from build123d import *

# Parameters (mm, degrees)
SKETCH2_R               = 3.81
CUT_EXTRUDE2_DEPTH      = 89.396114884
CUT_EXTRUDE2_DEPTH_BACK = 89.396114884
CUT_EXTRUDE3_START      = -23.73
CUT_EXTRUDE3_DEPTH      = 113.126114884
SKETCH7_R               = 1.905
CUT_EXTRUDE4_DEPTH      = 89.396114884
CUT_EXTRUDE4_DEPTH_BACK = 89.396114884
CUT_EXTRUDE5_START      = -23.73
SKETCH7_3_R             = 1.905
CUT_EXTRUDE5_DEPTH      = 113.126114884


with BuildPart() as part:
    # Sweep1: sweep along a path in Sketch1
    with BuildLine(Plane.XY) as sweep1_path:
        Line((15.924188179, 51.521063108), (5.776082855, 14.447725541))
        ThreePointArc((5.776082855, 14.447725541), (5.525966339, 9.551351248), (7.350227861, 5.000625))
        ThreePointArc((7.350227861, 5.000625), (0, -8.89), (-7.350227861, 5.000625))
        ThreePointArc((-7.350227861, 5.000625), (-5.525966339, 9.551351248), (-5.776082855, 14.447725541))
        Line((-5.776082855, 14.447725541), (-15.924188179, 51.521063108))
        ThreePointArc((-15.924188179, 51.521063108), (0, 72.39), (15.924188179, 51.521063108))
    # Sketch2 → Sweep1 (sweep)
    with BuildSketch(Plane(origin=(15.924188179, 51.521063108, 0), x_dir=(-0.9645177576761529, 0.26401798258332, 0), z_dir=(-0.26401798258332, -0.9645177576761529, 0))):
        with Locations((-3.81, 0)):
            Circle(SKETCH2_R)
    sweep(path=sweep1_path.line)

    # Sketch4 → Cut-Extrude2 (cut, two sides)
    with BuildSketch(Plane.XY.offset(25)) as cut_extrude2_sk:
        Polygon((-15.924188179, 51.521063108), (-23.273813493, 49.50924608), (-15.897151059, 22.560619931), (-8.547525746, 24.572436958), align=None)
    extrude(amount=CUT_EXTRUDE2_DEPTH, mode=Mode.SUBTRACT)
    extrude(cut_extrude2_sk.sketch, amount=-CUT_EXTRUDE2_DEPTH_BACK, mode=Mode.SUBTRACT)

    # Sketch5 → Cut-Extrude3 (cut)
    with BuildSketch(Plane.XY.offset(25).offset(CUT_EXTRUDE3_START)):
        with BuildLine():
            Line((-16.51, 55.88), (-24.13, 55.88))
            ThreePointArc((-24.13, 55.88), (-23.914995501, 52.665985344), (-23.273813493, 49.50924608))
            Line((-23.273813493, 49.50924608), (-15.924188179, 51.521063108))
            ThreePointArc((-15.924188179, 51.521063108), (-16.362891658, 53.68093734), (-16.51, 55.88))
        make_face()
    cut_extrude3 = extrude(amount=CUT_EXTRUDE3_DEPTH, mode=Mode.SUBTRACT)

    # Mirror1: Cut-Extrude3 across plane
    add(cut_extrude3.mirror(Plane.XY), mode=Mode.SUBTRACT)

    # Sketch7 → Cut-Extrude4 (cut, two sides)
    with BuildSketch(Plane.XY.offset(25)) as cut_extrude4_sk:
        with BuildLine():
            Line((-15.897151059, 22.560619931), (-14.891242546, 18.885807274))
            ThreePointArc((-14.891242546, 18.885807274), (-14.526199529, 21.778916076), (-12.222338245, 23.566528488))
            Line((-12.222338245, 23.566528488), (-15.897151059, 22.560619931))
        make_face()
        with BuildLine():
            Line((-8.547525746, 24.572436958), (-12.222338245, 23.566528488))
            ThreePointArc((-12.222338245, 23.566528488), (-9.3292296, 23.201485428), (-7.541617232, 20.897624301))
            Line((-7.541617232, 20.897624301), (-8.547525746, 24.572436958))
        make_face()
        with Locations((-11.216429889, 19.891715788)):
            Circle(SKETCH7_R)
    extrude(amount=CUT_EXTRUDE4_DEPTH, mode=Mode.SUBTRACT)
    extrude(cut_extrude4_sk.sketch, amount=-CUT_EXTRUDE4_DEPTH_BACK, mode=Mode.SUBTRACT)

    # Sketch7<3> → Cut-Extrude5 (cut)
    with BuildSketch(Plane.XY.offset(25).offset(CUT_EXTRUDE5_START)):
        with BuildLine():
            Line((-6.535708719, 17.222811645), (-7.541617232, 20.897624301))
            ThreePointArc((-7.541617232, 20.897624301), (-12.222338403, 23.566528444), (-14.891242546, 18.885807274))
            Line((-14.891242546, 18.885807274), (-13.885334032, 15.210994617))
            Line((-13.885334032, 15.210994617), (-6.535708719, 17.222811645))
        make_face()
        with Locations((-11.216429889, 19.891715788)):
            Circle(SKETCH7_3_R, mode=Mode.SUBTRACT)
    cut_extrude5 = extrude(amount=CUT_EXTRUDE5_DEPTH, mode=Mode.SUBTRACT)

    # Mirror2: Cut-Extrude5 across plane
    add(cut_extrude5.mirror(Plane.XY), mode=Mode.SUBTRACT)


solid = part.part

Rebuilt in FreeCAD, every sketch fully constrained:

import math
import FreeCAD as App
import Part
import Sketcher
Q = App.Units.Quantity

doc = App.newDocument("Part")
params = doc.addObject("Spreadsheet::Sheet", "Params")
for row, (alias, value) in enumerate([
    ("sketch1_diameter", "0.3 in"),
    ("sketch2_radius", "0.45 in"),
    ("sketch2_radius2", "0.35 in"),
    ("sketch2_radius3", "0.65 in"),
    ("sketch3_length", "0.3 in"),
    ("sketch3_length2", "1.1 in"),
    ("sketch4_radius", "0.95 in"),
    ("sketch4_radius2", "0.65 in"),
    ("pocket2_length", "113.126115 mm"),
    ("sketch5_diameter", "0.15 in"),
    ("sketch5_radius", "0.15 in"),
    ("sketch6_diameter", "0.15 in"),
    ("sketch6_radius", "0.15 in"),
    ("sketch6_length", "0.15 in"),
    ("pocket4_length", "113.126115 mm"),
], start=1):
    params.set(f"A{row}", alias)
    params.set(f"B{row}", "=" + value)
    params.setAlias(f"B{row}", alias)

body = doc.addObject("PartDesign::Body", "Body")

sketch1 = doc.addObject("Sketcher::SketchObject", "Sketch")
body.addObject(sketch1)
sketch1.Placement = App.Placement(App.Vector(15.924188, 51.521063, 0), App.Rotation(App.Vector(-0.964517758, 0.264017983, 0), App.Vector(0, 0, -1.000000001), App.Vector(-0.264017983, -0.964517758, 0), "ZXY"))
sketch1.addGeometry(Part.Circle(App.Vector(-3.81, 0, 0), App.Vector(0, 0, 1), 3.81), False)
sketch1.addConstraint(Sketcher.Constraint("PointOnObject", 0, 3, -1))
sketch1.addConstraint(Sketcher.Constraint("Diameter", 0, Q("0.3 in")))
sketch1.addConstraint(Sketcher.Constraint("DistanceX", 0, 3, -1, 1, Q("0.15 in")))
sketch1.setExpression("Constraints[1]", "Params.sketch1_diameter")

sketch2 = doc.addObject("Sketcher::SketchObject", "Sketch001")
body.addObject(sketch2)
sketch2.AttachmentSupport = (doc.XY_Plane, [""])
sketch2.MapMode = "FlatFace"
sketch2.addGeometry(Part.LineSegment(App.Vector(15.924188, 51.521063, 0), App.Vector(5.776083, 14.447726, 0)), False)
sketch2.addGeometry(Part.ArcOfCircle(Part.Circle(App.Vector(16.800521, 11.43, 0), App.Vector(0, 0, 1), 11.43), math.radians(164.691391), math.radians(214.228866)), False)
sketch2.addGeometry(Part.ArcOfCircle(Part.Circle(App.Vector(0, 0, 0), App.Vector(0, 0, 1), 8.89), math.radians(145.771134), math.radians(394.228866)), False)
sketch2.addGeometry(Part.ArcOfCircle(Part.Circle(App.Vector(-16.800521, 11.43, 0), App.Vector(0, 0, 1), 11.43), math.radians(-34.228866), math.radians(15.308609)), False)
sketch2.addGeometry(Part.LineSegment(App.Vector(-5.776083, 14.447726, 0), App.Vector(-15.924188, 51.521063, 0)), False)
sketch2.addGeometry(Part.ArcOfCircle(Part.Circle(App.Vector(0, 55.88, 0), App.Vector(0, 0, 1), 16.51), math.radians(-15.308609), math.radians(195.308609)), False)
sketch2.addConstraint(Sketcher.Constraint("Tangent", 0, 2, 1, 1))
sketch2.addConstraint(Sketcher.Constraint("Tangent", 1, 2, 2, 2))
sketch2.addConstraint(Sketcher.Constraint("Tangent", 2, 1, 3, 1))
sketch2.addConstraint(Sketcher.Constraint("Tangent", 3, 2, 4, 1))
sketch2.addConstraint(Sketcher.Constraint("Tangent", 4, 2, 5, 2))
sketch2.addConstraint(Sketcher.Constraint("Tangent", 5, 1, 0, 1))
sketch2.addConstraint(Sketcher.Constraint("Coincident", 2, 3, -1, 1))
sketch2.addConstraint(Sketcher.Constraint("Equal", 1, 3))
sketch2.addConstraint(Sketcher.Constraint("Symmetric", 0, 2, 3, 2, -2))
sketch2.addConstraint(Sketcher.Constraint("Radius", 1, Q("0.45 in")))
sketch2.addConstraint(Sketcher.Constraint("Radius", 2, Q("0.35 in")))
sketch2.addConstraint(Sketcher.Constraint("Radius", 5, Q("0.65 in")))
sketch2.addConstraint(Sketcher.Constraint("DistanceY", -1, 1, 5, 3, Q("2.2 in")))
sketch2.addConstraint(Sketcher.Constraint("DistanceY", -1, 1, 1, 3, Q("0.45 in")))
sketch2.setExpression("Constraints[9]", "Params.sketch2_radius")
sketch2.setExpression("Constraints[10]", "Params.sketch2_radius2")
sketch2.setExpression("Constraints[11]", "Params.sketch2_radius3")
doc.recompute()

additivepipe = doc.addObject("PartDesign::AdditivePipe", "AdditivePipe")
body.addObject(additivepipe)
additivepipe.Profile = sketch1
additivepipe.Spine = (sketch2, ["Edge1", "Edge2", "Edge3", "Edge4", "Edge5", "Edge6"])

sketch3 = doc.addObject("Sketcher::SketchObject", "Sketch002")
body.addObject(sketch3)
sketch3.AttachmentSupport = (doc.XY_Plane, [""])
sketch3.MapMode = "FlatFace"
sketch3.AttachmentOffset = App.Placement(App.Vector(0, 0, 25), App.Rotation())
sketch3.addGeometry(Part.LineSegment(App.Vector(-15.924188, 51.521063, 0), App.Vector(-23.273813, 49.509246, 0)), False)
sketch3.addGeometry(Part.LineSegment(App.Vector(-23.273813, 49.509246, 0), App.Vector(-15.897151, 22.56062, 0)), False)
sketch3.addGeometry(Part.LineSegment(App.Vector(-15.897151, 22.56062, 0), App.Vector(-8.547526, 24.572437, 0)), False)
sketch3.addGeometry(Part.LineSegment(App.Vector(-8.547526, 24.572437, 0), App.Vector(-15.924188, 51.521063, 0)), False)
sketch3.addConstraint(Sketcher.Constraint("Coincident", 0, 2, 1, 1))
sketch3.addConstraint(Sketcher.Constraint("Coincident", 1, 2, 2, 1))
sketch3.addConstraint(Sketcher.Constraint("Coincident", 2, 2, 3, 1))
sketch3.addConstraint(Sketcher.Constraint("Coincident", 3, 2, 0, 1))
sketch3.addConstraint(Sketcher.Constraint("Perpendicular", 0, 1))
sketch3.addConstraint(Sketcher.Constraint("Perpendicular", 1, 2))
sketch3.addConstraint(Sketcher.Constraint("Perpendicular", 2, 3))
sketch3.addConstraint(Sketcher.Constraint("Distance", 0, Q("0.3 in")))
sketch3.addConstraint(Sketcher.Constraint("Distance", 1, Q("1.1 in")))
sketch3.addConstraint(Sketcher.Constraint("DistanceX", 1, 2, -1, 1, Q("15.897151 mm")))
sketch3.addConstraint(Sketcher.Constraint("DistanceY", -1, 1, 1, 2, Q("22.56062 mm")))
sketch3.addConstraint(Sketcher.Constraint("DistanceX", 3, 2, -1, 1, Q("15.924188 mm")))
sketch3.setExpression("Constraints[7]", "Params.sketch3_length")
sketch3.setExpression("Constraints[8]", "Params.sketch3_length2")
pocket1 = doc.addObject("PartDesign::Pocket", "Pocket")
body.addObject(pocket1)
pocket1.Profile = sketch3
pocket1.Type = "ThroughAll"
pocket1.Midplane = True

sketch4 = doc.addObject("Sketcher::SketchObject", "Sketch003")
body.addObject(sketch4)
sketch4.AttachmentSupport = (doc.XY_Plane, [""])
sketch4.MapMode = "FlatFace"
sketch4.AttachmentOffset = App.Placement(App.Vector(0, 0, 0.05 * 25.4), App.Rotation())
sketch4.addGeometry(Part.LineSegment(App.Vector(-16.51, 55.88, 0), App.Vector(-24.13, 55.88, 0)), False)
sketch4.addGeometry(Part.ArcOfCircle(Part.Circle(App.Vector(0, 55.88, 0), App.Vector(0, 0, 1), 24.13), math.radians(180), math.radians(195.308609)), False)
sketch4.addGeometry(Part.LineSegment(App.Vector(-23.273813, 49.509246, 0), App.Vector(-15.924188, 51.521063, 0)), False)
sketch4.addGeometry(Part.ArcOfCircle(Part.Circle(App.Vector(0, 55.88, 0), App.Vector(0, 0, 1), 16.51), math.radians(-180), math.radians(-164.691391)), False)
sketch4.addConstraint(Sketcher.Constraint("Coincident", 0, 2, 1, 1))
sketch4.addConstraint(Sketcher.Constraint("Coincident", 1, 2, 2, 1))
sketch4.addConstraint(Sketcher.Constraint("Coincident", 2, 2, 3, 2))
sketch4.addConstraint(Sketcher.Constraint("Coincident", 3, 1, 0, 1))
sketch4.addConstraint(Sketcher.Constraint("Horizontal", 0))
sketch4.addConstraint(Sketcher.Constraint("Coincident", 3, 3, 1, 3))
sketch4.addConstraint(Sketcher.Constraint("PointOnObject", 1, 3, -2))
sketch4.addConstraint(Sketcher.Constraint("Horizontal", 3, 3, 0, 2))
sketch4.addConstraint(Sketcher.Constraint("Radius", 1, Q("0.95 in")))
sketch4.addConstraint(Sketcher.Constraint("Radius", 3, Q("0.65 in")))
sketch4.addConstraint(Sketcher.Constraint("DistanceY", -1, 1, 1, 3, Q("2.2 in")))
sketch4.addConstraint(Sketcher.Constraint("DistanceX", 2, 2, -1, 1, Q("15.924188 mm")))
sketch4.addConstraint(Sketcher.Constraint("DistanceX", 1, 2, -1, 1, Q("23.273813 mm")))
sketch4.setExpression("Constraints[8]", "Params.sketch4_radius")
sketch4.setExpression("Constraints[9]", "Params.sketch4_radius2")
pocket2 = doc.addObject("PartDesign::Pocket", "Pocket001")
body.addObject(pocket2)
pocket2.Profile = sketch4
pocket2.setExpression("Length", "Params.pocket2_length")
pocket2.Reversed = True
doc.recompute()

mirrored = doc.addObject("PartDesign::Mirrored", "Mirrored")
body.addObject(mirrored)
mirrored.Originals = [pocket2]
mirrored.MirrorPlane = (doc.XY_Plane, [""])
body.Tip = mirrored

sketch5 = doc.addObject("Sketcher::SketchObject", "Sketch004")
body.addObject(sketch5)
sketch5.AttachmentSupport = (doc.XY_Plane, [""])
sketch5.MapMode = "FlatFace"
sketch5.AttachmentOffset = App.Placement(App.Vector(0, 0, 25), App.Rotation())
sketch5.addGeometry(Part.LineSegment(App.Vector(-15.897151, 22.56062, 0), App.Vector(-14.891243, 18.885807, 0)), False)
sketch5.addGeometry(Part.ArcOfCircle(Part.Circle(App.Vector(-11.21643, 19.891716, 0), App.Vector(0, 0, 1), 3.81), math.radians(105.308607), math.radians(195.308609)), False)
sketch5.addGeometry(Part.LineSegment(App.Vector(-12.222338, 23.566528, 0), App.Vector(-15.897151, 22.56062, 0)), False)
sketch5.addGeometry(Part.LineSegment(App.Vector(-8.547526, 24.572437, 0), App.Vector(-12.222338, 23.566528, 0)), False)
sketch5.addGeometry(Part.ArcOfCircle(Part.Circle(App.Vector(-11.21643, 19.891716, 0), App.Vector(0, 0, 1), 3.81), math.radians(15.308609), math.radians(105.308607)), False)
sketch5.addGeometry(Part.LineSegment(App.Vector(-7.541617, 20.897624, 0), App.Vector(-8.547526, 24.572437, 0)), False)
sketch5.addGeometry(Part.Circle(App.Vector(-11.21643, 19.891716, 0), App.Vector(0, 0, 1), 1.905), False)
sketch5.addConstraint(Sketcher.Constraint("Tangent", 0, 2, 1, 2))
sketch5.addConstraint(Sketcher.Constraint("Tangent", 1, 1, 2, 1))
sketch5.addConstraint(Sketcher.Constraint("Coincident", 2, 2, 0, 1))
sketch5.addConstraint(Sketcher.Constraint("Tangent", 3, 2, 4, 2))
sketch5.addConstraint(Sketcher.Constraint("Tangent", 4, 1, 5, 1))
sketch5.addConstraint(Sketcher.Constraint("Coincident", 5, 2, 3, 1))
sketch5.addConstraint(Sketcher.Constraint("Coincident", 4, 3, 1, 3))
sketch5.addConstraint(Sketcher.Constraint("Coincident", 6, 3, 1, 3))
sketch5.addConstraint(Sketcher.Constraint("Coincident", 3, 2, 1, 1))
sketch5.addConstraint(Sketcher.Constraint("Perpendicular", 0, 2))
sketch5.addConstraint(Sketcher.Constraint("Perpendicular", 3, 5))
sketch5.addConstraint(Sketcher.Constraint("Diameter", 6, Q("0.15 in")))
sketch5.addConstraint(Sketcher.Constraint("Radius", 1, Q("0.15 in")))
sketch5.addConstraint(Sketcher.Constraint("DistanceX", 1, 3, -1, 1, Q("11.21643 mm")))
sketch5.addConstraint(Sketcher.Constraint("DistanceX", 1, 1, -1, 1, Q("12.222338 mm")))
sketch5.addConstraint(Sketcher.Constraint("DistanceY", -1, 1, 1, 1, Q("23.566528 mm")))
sketch5.setExpression("Constraints[11]", "Params.sketch5_diameter")
sketch5.setExpression("Constraints[12]", "Params.sketch5_radius")
pocket3 = doc.addObject("PartDesign::Pocket", "Pocket002")
body.addObject(pocket3)
pocket3.Profile = sketch5
pocket3.Type = "ThroughAll"
pocket3.Midplane = True

sketch6 = doc.addObject("Sketcher::SketchObject", "Sketch005")
body.addObject(sketch6)
sketch6.AttachmentSupport = (doc.XY_Plane, [""])
sketch6.MapMode = "FlatFace"
sketch6.AttachmentOffset = App.Placement(App.Vector(0, 0, 0.05 * 25.4), App.Rotation())
sketch6.addGeometry(Part.LineSegment(App.Vector(-6.535709, 17.222812, 0), App.Vector(-7.541617, 20.897624, 0)), False)
sketch6.addGeometry(Part.ArcOfCircle(Part.Circle(App.Vector(-11.21643, 19.891716, 0), App.Vector(0, 0, 1), 3.81), math.radians(15.308609), math.radians(195.308609)), False)
sketch6.addGeometry(Part.LineSegment(App.Vector(-14.891243, 18.885807, 0), App.Vector(-13.885334, 15.210995, 0)), False)
sketch6.addGeometry(Part.LineSegment(App.Vector(-13.885334, 15.210995, 0), App.Vector(-6.535709, 17.222812, 0)), False)
sketch6.addGeometry(Part.Circle(App.Vector(-11.21643, 19.891716, 0), App.Vector(0, 0, 1), 1.905), False)
sketch6.addConstraint(Sketcher.Constraint("Tangent", 0, 2, 1, 1))
sketch6.addConstraint(Sketcher.Constraint("Tangent", 1, 2, 2, 1))
sketch6.addConstraint(Sketcher.Constraint("Coincident", 2, 2, 3, 1))
sketch6.addConstraint(Sketcher.Constraint("Coincident", 3, 2, 0, 1))
sketch6.addConstraint(Sketcher.Constraint("Coincident", 4, 3, 1, 3))
sketch6.addConstraint(Sketcher.Constraint("Parallel", 0, 2))
sketch6.addConstraint(Sketcher.Constraint("Perpendicular", 2, 3))
sketch6.addConstraint(Sketcher.Constraint("Diameter", 4, Q("0.15 in")))
sketch6.addConstraint(Sketcher.Constraint("Radius", 1, Q("0.15 in")))
sketch6.addConstraint(Sketcher.Constraint("Distance", 0, Q("0.15 in")))
sketch6.addConstraint(Sketcher.Constraint("DistanceX", 1, 3, -1, 1, Q("11.21643 mm")))
sketch6.addConstraint(Sketcher.Constraint("DistanceX", 3, 2, -1, 1, Q("6.535709 mm")))
sketch6.addConstraint(Sketcher.Constraint("DistanceY", -1, 1, 3, 2, Q("17.222812 mm")))
sketch6.setExpression("Constraints[7]", "Params.sketch6_diameter")
sketch6.setExpression("Constraints[8]", "Params.sketch6_radius")
sketch6.setExpression("Constraints[9]", "Params.sketch6_length")
pocket4 = doc.addObject("PartDesign::Pocket", "Pocket003")
body.addObject(pocket4)
pocket4.Profile = sketch6
pocket4.setExpression("Length", "Params.pocket4_length")
pocket4.Reversed = True
doc.recompute()

mirrored2 = doc.addObject("PartDesign::Mirrored", "Mirrored001")
body.addObject(mirrored2)
mirrored2.Originals = [pocket4]
mirrored2.MirrorPlane = (doc.XY_Plane, [""])
body.Tip = mirrored2

doc.recompute()
